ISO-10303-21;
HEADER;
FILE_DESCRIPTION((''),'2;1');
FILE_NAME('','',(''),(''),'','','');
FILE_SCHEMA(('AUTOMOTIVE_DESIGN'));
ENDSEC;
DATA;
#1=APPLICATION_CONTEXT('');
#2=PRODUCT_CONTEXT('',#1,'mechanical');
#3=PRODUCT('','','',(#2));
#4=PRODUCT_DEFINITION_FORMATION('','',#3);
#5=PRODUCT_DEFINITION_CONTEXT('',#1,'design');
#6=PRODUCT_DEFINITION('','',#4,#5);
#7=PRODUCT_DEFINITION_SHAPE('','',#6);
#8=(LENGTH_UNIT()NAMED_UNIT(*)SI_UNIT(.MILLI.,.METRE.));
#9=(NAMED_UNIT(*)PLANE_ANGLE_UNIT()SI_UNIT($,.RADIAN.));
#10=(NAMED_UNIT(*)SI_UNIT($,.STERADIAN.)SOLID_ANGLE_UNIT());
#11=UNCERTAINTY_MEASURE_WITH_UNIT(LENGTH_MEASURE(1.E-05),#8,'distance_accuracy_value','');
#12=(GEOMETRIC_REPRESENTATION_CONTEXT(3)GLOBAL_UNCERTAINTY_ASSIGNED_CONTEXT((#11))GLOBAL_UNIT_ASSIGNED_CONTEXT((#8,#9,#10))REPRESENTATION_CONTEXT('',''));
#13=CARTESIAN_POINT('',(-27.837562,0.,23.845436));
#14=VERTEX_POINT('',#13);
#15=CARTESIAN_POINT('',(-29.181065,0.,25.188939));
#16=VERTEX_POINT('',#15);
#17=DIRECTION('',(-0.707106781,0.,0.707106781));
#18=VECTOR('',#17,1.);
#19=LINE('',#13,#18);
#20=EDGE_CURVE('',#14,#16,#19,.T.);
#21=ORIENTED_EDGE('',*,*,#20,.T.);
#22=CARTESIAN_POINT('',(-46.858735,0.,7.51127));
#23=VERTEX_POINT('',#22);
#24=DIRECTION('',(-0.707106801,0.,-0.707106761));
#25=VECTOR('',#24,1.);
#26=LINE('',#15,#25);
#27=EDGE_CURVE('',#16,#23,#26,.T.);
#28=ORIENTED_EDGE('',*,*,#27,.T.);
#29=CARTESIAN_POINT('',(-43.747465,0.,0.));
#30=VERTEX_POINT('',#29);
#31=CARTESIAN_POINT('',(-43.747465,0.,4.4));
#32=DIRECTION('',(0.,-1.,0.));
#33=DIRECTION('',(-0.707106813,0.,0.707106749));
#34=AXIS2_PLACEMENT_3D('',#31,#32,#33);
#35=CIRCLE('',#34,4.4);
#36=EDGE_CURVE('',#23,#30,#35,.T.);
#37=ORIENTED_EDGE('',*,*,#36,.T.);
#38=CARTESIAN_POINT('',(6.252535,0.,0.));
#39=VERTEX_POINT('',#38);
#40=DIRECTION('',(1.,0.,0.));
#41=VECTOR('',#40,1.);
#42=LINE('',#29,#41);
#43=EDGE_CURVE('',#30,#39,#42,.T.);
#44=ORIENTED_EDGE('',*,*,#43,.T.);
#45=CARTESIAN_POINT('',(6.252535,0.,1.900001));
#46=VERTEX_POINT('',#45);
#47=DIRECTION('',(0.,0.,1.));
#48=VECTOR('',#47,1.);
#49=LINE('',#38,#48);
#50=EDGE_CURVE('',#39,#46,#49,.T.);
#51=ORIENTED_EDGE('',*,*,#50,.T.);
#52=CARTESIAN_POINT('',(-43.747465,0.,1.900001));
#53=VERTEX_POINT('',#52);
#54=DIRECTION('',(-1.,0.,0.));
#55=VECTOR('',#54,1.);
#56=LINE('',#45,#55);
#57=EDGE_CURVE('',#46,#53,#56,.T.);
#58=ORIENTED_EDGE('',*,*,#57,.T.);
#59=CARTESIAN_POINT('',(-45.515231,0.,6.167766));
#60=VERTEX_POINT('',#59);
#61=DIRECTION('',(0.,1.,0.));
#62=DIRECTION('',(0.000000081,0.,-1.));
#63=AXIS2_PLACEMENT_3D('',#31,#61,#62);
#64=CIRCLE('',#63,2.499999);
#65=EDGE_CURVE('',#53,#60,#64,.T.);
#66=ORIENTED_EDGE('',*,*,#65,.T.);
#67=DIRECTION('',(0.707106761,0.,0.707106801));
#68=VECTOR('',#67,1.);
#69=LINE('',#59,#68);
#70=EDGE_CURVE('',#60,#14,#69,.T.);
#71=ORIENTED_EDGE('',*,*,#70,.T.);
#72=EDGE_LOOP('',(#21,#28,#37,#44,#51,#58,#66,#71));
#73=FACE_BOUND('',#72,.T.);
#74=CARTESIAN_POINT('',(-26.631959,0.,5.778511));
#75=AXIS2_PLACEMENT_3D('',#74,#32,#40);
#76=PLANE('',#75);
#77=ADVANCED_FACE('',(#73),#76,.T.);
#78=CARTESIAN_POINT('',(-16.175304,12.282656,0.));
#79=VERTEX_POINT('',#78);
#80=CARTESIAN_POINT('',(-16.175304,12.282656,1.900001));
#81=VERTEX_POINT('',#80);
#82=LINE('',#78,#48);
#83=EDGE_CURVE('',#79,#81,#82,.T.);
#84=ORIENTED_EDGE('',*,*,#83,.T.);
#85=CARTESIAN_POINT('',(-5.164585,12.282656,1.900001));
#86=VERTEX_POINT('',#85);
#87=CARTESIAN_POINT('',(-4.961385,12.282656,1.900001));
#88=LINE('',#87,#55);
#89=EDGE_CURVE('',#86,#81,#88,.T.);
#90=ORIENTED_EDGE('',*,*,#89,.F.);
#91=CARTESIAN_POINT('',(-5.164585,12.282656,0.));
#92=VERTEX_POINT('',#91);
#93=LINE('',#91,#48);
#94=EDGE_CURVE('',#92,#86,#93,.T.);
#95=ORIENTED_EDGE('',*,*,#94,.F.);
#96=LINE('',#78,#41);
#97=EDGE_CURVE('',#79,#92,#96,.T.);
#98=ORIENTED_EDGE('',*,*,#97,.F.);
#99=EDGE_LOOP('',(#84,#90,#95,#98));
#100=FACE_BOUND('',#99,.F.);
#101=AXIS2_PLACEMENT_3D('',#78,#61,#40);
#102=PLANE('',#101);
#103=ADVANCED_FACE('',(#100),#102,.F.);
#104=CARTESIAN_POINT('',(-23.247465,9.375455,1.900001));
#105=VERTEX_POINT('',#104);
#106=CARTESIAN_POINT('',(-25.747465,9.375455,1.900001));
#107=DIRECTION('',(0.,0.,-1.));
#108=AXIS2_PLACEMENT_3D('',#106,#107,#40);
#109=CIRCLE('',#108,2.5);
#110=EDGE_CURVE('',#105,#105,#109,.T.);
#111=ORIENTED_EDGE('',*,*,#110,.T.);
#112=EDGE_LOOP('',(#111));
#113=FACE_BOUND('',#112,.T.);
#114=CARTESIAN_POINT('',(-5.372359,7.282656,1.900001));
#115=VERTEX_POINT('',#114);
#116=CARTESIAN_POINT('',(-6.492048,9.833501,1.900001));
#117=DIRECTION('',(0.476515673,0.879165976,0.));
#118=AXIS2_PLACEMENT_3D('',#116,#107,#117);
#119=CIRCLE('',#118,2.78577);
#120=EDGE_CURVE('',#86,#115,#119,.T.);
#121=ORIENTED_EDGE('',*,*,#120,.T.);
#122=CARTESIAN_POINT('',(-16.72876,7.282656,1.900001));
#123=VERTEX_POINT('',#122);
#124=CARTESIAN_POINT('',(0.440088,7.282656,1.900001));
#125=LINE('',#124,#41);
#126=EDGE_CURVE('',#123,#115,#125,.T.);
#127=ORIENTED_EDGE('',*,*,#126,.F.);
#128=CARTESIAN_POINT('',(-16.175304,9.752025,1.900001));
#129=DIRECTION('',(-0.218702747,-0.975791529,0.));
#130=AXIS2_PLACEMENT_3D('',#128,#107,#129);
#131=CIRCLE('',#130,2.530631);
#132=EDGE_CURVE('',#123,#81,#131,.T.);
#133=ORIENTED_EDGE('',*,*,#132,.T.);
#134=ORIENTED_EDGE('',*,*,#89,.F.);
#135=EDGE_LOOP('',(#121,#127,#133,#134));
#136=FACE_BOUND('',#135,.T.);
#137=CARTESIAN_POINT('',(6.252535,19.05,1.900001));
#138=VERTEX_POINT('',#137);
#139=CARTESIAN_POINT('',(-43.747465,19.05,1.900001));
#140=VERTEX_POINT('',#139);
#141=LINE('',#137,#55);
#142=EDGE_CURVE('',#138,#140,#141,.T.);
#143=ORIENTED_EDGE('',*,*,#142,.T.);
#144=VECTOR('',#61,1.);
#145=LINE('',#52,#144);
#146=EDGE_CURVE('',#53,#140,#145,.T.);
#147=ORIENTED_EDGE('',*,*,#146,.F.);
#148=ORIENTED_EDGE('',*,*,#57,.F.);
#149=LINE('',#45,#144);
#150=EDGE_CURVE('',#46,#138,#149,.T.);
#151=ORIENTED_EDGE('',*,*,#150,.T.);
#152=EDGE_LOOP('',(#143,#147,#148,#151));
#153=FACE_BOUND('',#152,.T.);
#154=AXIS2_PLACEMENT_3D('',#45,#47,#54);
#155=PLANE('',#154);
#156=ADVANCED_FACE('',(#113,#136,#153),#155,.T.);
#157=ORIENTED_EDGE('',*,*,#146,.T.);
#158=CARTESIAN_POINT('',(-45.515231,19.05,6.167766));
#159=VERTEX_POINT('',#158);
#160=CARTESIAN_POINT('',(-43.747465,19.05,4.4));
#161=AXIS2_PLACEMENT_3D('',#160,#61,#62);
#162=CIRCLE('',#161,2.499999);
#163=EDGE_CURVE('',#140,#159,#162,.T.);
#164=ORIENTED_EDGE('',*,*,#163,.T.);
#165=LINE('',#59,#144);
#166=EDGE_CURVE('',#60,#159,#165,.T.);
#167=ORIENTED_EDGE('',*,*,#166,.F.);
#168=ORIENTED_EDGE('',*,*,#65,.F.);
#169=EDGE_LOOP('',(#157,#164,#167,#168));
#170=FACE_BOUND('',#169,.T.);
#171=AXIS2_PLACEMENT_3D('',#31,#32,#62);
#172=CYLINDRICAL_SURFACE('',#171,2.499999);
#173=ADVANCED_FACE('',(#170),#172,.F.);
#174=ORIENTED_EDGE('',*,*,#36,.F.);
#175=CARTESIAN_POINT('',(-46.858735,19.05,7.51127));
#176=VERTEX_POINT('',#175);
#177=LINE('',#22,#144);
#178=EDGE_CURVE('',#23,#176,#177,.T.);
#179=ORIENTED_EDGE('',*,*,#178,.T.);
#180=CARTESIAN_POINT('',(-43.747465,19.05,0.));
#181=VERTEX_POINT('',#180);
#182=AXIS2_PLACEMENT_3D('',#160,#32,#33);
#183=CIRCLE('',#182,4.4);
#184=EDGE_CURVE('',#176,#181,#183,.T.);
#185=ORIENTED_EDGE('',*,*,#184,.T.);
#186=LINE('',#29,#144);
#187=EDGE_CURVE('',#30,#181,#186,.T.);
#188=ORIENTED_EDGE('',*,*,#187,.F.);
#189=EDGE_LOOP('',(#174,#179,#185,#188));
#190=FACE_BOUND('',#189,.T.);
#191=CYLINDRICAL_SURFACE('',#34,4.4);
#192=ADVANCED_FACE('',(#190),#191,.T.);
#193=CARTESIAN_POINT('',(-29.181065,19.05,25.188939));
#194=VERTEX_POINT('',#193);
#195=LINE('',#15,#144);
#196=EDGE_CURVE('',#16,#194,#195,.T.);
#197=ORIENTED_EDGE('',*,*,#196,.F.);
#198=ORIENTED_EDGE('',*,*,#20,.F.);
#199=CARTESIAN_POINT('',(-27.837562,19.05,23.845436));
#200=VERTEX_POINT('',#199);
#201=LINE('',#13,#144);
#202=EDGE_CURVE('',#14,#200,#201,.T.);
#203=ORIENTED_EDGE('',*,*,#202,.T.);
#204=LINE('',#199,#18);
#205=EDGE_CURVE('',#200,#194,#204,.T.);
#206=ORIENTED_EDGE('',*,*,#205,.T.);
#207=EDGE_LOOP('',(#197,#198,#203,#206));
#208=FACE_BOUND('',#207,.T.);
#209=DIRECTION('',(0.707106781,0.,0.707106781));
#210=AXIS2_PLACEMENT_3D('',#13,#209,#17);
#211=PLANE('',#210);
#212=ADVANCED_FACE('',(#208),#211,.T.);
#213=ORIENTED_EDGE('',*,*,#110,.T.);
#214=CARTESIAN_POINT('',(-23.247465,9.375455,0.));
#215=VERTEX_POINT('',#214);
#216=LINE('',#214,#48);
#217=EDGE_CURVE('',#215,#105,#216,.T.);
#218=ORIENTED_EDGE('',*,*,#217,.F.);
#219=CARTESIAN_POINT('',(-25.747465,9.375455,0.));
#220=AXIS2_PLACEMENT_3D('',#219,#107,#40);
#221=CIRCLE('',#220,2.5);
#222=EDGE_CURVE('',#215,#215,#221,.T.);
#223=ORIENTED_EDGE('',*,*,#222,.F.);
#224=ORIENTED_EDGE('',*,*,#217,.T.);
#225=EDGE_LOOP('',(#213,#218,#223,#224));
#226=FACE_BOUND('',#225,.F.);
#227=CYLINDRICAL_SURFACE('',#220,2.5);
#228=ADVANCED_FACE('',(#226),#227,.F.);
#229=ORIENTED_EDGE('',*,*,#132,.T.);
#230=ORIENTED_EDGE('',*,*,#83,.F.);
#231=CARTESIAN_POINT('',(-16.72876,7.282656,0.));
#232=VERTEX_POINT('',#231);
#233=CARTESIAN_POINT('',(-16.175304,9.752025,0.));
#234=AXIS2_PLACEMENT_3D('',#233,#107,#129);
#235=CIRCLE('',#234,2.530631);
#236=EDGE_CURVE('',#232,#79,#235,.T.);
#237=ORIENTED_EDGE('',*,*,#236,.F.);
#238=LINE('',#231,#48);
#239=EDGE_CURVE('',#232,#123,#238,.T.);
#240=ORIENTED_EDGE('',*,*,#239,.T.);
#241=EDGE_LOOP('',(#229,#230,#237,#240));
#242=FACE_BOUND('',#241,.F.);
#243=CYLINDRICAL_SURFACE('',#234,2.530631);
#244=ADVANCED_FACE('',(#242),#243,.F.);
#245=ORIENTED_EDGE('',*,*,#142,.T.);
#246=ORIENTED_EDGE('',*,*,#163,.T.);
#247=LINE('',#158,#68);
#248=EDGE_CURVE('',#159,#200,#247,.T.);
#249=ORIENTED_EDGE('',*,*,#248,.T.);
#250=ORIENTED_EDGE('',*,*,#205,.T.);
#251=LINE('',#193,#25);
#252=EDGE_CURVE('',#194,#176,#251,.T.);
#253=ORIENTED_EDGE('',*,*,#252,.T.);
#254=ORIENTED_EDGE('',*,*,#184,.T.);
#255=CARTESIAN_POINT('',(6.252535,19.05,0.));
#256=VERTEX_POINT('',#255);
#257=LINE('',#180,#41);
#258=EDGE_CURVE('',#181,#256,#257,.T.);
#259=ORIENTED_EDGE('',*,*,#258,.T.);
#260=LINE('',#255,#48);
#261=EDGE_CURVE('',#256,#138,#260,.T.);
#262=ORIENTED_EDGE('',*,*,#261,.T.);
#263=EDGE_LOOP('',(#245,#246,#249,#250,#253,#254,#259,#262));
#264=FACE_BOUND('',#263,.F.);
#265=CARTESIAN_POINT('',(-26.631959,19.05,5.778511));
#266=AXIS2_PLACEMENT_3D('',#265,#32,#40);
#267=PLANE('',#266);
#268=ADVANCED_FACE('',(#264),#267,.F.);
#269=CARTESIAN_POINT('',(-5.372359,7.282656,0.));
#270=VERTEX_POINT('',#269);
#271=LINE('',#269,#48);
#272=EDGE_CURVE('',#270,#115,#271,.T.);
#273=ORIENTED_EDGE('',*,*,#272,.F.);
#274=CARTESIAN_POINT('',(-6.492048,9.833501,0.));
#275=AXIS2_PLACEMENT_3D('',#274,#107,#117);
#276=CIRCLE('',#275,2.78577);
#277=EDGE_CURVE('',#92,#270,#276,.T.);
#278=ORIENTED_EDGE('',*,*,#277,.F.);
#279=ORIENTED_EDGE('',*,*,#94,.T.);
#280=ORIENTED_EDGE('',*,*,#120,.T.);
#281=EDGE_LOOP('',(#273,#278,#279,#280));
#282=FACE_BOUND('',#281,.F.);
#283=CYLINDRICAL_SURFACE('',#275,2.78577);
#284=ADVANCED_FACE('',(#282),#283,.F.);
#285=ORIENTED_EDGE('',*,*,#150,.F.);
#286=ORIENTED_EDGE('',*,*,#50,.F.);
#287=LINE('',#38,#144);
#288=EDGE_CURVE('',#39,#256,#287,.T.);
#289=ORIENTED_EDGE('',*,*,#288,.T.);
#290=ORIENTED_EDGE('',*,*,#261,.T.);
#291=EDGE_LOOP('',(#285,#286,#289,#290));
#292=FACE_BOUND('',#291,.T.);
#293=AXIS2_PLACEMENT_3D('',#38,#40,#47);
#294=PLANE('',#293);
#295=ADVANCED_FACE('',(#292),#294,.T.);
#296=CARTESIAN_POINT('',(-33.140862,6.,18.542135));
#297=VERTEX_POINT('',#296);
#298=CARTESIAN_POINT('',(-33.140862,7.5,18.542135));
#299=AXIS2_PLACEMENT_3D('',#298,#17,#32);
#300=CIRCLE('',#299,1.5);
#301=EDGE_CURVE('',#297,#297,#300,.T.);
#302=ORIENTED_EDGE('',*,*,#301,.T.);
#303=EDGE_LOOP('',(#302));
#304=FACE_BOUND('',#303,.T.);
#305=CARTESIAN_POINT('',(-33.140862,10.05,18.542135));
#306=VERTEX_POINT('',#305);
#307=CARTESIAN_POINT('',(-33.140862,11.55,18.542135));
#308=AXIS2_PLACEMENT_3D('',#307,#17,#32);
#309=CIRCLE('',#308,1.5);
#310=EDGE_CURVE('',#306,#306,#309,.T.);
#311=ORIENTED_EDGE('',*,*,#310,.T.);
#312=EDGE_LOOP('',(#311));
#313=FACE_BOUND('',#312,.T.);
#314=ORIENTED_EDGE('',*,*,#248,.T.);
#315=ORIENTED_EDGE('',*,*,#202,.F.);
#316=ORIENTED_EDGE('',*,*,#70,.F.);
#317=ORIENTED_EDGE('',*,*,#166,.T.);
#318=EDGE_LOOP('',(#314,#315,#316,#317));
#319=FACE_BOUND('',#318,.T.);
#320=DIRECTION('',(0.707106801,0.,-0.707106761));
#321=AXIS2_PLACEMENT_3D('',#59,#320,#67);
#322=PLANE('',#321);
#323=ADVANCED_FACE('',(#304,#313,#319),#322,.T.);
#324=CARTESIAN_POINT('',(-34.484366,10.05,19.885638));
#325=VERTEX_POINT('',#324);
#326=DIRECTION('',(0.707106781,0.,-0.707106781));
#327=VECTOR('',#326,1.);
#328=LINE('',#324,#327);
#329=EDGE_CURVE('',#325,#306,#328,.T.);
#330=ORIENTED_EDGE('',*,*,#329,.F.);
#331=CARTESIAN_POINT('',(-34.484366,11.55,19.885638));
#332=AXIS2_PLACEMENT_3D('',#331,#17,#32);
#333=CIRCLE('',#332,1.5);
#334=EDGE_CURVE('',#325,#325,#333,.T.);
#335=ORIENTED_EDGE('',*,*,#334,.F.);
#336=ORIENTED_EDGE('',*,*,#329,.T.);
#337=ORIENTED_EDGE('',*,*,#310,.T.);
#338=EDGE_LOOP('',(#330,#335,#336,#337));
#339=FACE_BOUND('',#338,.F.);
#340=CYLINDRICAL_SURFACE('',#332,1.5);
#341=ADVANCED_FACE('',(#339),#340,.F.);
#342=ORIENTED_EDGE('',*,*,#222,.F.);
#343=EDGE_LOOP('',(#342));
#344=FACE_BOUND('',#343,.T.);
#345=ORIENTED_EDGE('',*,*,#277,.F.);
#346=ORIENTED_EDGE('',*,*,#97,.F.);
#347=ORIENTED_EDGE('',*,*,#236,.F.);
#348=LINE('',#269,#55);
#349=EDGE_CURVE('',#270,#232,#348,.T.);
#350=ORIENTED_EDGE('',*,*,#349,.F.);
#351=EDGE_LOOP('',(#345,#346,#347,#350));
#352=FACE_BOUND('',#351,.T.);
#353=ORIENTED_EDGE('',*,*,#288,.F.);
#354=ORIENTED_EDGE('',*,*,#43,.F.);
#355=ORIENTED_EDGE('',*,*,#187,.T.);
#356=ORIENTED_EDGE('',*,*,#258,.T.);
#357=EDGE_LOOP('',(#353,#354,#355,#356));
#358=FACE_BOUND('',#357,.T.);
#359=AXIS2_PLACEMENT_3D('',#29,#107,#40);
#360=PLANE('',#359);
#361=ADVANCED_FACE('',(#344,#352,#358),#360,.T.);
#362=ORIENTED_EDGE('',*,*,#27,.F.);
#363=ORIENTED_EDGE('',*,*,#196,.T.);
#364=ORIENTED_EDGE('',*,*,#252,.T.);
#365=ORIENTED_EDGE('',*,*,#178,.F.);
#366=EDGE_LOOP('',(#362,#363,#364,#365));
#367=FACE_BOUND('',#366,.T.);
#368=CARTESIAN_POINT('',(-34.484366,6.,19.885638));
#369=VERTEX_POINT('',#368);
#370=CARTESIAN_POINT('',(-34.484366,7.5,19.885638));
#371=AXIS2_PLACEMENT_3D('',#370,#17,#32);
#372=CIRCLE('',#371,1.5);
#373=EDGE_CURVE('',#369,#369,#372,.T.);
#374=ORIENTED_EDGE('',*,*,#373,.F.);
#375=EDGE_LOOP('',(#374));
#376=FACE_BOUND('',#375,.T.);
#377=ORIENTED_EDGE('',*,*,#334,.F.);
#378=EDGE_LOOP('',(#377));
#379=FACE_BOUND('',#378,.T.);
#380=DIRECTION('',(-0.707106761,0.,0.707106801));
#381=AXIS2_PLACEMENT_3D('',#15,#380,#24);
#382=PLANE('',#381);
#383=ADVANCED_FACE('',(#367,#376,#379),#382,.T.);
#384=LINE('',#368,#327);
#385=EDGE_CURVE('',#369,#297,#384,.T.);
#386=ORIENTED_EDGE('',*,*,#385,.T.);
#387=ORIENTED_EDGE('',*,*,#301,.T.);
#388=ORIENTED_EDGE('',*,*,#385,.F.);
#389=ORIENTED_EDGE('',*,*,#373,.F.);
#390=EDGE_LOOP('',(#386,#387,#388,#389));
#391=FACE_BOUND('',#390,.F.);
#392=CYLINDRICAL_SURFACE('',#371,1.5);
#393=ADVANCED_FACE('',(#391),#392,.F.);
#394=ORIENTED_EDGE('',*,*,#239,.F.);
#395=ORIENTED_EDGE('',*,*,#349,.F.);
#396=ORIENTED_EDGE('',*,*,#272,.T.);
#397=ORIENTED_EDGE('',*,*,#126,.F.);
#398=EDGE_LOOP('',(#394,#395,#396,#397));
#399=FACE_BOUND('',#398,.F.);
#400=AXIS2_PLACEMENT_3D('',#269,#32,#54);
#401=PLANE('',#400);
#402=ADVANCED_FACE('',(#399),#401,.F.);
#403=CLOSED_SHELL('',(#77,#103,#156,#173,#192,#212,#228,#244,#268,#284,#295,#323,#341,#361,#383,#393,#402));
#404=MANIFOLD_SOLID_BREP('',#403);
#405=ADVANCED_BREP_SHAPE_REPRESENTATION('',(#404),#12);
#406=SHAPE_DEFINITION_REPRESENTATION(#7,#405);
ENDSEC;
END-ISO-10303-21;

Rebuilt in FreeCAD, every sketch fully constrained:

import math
import FreeCAD as App
import Part
import Sketcher
Q = App.Units.Quantity

doc = App.newDocument("Part")
params = doc.addObject("Spreadsheet::Sheet", "Params")
for row, (alias, value) in enumerate([
    ("sketch1_radius", "2.499999 mm"),
    ("sketch1_radius2", "4.4 mm"),
    ("sketch1_width", "50 mm"),
    ("sketch1_length", "25 mm"),
    ("pad1_length", "19.05 mm"),
    ("sketch2_diameter", "3 mm"),
    ("pocket1_length", "12.7 mm"),
    ("sketch3_diameter", "5 mm"),
    ("pocket2_length", "12.7 mm"),
], start=1):
    params.set(f"A{row}", alias)
    params.set(f"B{row}", "=" + value)
    params.setAlias(f"B{row}", alias)

body = doc.addObject("PartDesign::Body", "Body")

# Sketch on XZ plane
sketch1 = doc.addObject("Sketcher::SketchObject", "Sketch")
body.addObject(sketch1)
sketch1.AttachmentSupport = (doc.XZ_Plane, [""])
sketch1.MapMode = "FlatFace"
sketch1.addGeometry([
    Part.LineSegment(App.Vector(-43.747465, 0, 0), App.Vector(6.252535, 0, 0)),  # 0
    Part.LineSegment(App.Vector(6.252535, 0, 0), App.Vector(6.252535, 1.900001, 0)),  # 1
    Part.LineSegment(App.Vector(6.252535, 1.900001, 0), App.Vector(-43.747465, 1.900001, 0)),  # 2
    Part.ArcOfCircle(Part.Circle(App.Vector(-43.747465, 4.4, 0), App.Vector(0, 0, 1), 2.499999), math.radians(134.999992), math.radians(270.000005)),  # 3
    Part.LineSegment(App.Vector(-45.515231, 6.167766, 0), App.Vector(-27.837562, 23.845436, 0)),  # 4
    Part.LineSegment(App.Vector(-27.837562, 23.845436, 0), App.Vector(-29.181065, 25.188939, 0)),  # 5
    Part.LineSegment(App.Vector(-29.181065, 25.188939, 0), App.Vector(-46.858735, 7.51127, 0)),  # 6
    Part.ArcOfCircle(Part.Circle(App.Vector(-43.747465, 4.4, 0), App.Vector(0, 0, 1), 4.4), math.radians(135.000003), math.radians(269.999999)),  # 7
], False)
sketch1.addConstraint([
    Sketcher.Constraint("Coincident", 0, 2, 1, 1),
    Sketcher.Constraint("Coincident", 1, 2, 2, 1),
    Sketcher.Constraint("Tangent", 2, 2, 3, 2),
    Sketcher.Constraint("Tangent", 3, 1, 4, 1),
    Sketcher.Constraint("Coincident", 4, 2, 5, 1),
    Sketcher.Constraint("Coincident", 5, 2, 6, 1),
    Sketcher.Constraint("Tangent", 6, 2, 7, 1),
    Sketcher.Constraint("Tangent", 7, 2, 0, 1),
    Sketcher.Constraint("Horizontal", 0),
    Sketcher.Constraint("Vertical", 1),
    Sketcher.Constraint("Horizontal", 2),
    Sketcher.Constraint("Coincident", 7, 3, 3, 3),
    Sketcher.Constraint("PointOnObject", 0, 2, -1),
    Sketcher.Constraint("Perpendicular", 4, 5),
    Sketcher.Constraint("Perpendicular", 5, 6),
    Sketcher.Constraint("Radius", 3, Q("2.499999 mm")),
    Sketcher.Constraint("Radius", 7, Q("4.4 mm")),
    Sketcher.Constraint("DistanceX", 0, 1, 0, 2, Q("50 mm")),
    Sketcher.Constraint("Angle", 4, Q("45.000002 deg")),
    Sketcher.Constraint("Distance", 4, Q("25 mm")),
    Sketcher.Constraint("DistanceX", 3, 1, -1, 1, Q("45.515231 mm")),
])
sketch1.setExpression("Constraints[15]", "Params.sketch1_radius")
sketch1.setExpression("Constraints[16]", "Params.sketch1_radius2")
sketch1.setExpression("Constraints[17]", "Params.sketch1_width")
sketch1.setExpression("Constraints[19]", "Params.sketch1_length")
pad1 = doc.addObject("PartDesign::Pad", "Pad")
body.addObject(pad1)
pad1.Profile = sketch1
pad1.setExpression("Length", "Params.pad1_length")
pad1.Reversed = True

# Sketch on an angled plane
sketch2 = doc.addObject("Sketcher::SketchObject", "Sketch001")
body.addObject(sketch2)
sketch2.Placement = App.Placement(App.Vector(-27.185002, 0, 27.185002), App.Rotation(App.Vector(0, -1, 0), App.Vector(0.707106781, 0, 0.707106781), App.Vector(-0.707106781, 0, 0.707106781), "ZXY"))
sketch2.addGeometry([
    Part.Circle(App.Vector(-7.5, -10.322859, 0), App.Vector(0, 0, 1), 1.5),
    Part.Circle(App.Vector(-11.55, -10.322859, 0), App.Vector(0, 0, 1), 1.5),
], False)
sketch2.addConstraint([
    Sketcher.Constraint("Equal", 0, 1),
    Sketcher.Constraint("Horizontal", 0, 3, 1, 3),
    Sketcher.Constraint("Diameter", 0, Q("3 mm")),
    Sketcher.Constraint("DistanceX", 0, 3, -1, 1, Q("7.5 mm")),
    Sketcher.Constraint("DistanceX", 1, 3, -1, 1, Q("11.55 mm")),
    Sketcher.Constraint("DistanceY", 0, 3, -1, 1, Q("10.322859 mm")),
])
sketch2.setExpression("Constraints[2]", "Params.sketch2_diameter")
pocket1 = doc.addObject("PartDesign::Pocket", "Pocket")
body.addObject(pocket1)
pocket1.Profile = sketch2
pocket1.setExpression("Length", "Params.pocket1_length")

# Sketch on XY plane
sketch3 = doc.addObject("Sketcher::SketchObject", "Sketch002")
body.addObject(sketch3)
sketch3.AttachmentSupport = (doc.XY_Plane, [""])
sketch3.MapMode = "FlatFace"
sketch3.addGeometry([
    Part.LineSegment(App.Vector(-5.372359, 7.282656, 0), App.Vector(-16.72876, 7.282656, 0)),  # 0
    Part.ArcOfCircle(Part.Circle(App.Vector(-16.175304, 9.752025, 0), App.Vector(0, 0, 1), 2.530631), math.radians(90.000001), math.radians(257.367149)),  # 1
    Part.LineSegment(App.Vector(-16.175304, 12.282656, 0), App.Vector(-5.164585, 12.282656, 0)),  # 2
    Part.ArcOfCircle(Part.Circle(App.Vector(-6.492048, 9.833501, 0), App.Vector(0, 0, 1), 2.78577), math.radians(-66.30101), math.radians(61.541919)),  # 3
    Part.Circle(App.Vector(-25.747465, 9.375455, 0), App.Vector(0, 0, 1), 2.5),  # 4
], False)
sketch3.addConstraint([
    Sketcher.Constraint("Coincident", 0, 2, 1, 2),
    Sketcher.Constraint("Tangent", 1, 1, 2, 1),
    Sketcher.Constraint("Coincident", 2, 2, 3, 2),
    Sketcher.Constraint("Coincident", 3, 1, 0, 1),
    Sketcher.Constraint("Horizontal", 0),
    Sketcher.Constraint("Horizontal", 2),
    Sketcher.Constraint("Diameter", 4, Q("5 mm")),
    Sketcher.Constraint("DistanceY", 0, 2, 1, 1, Q("5 mm")),
    Sketcher.Constraint("Radius", 1, Q("2.530631 mm")),
    Sketcher.Constraint("Radius", 3, Q("2.78577 mm")),
    Sketcher.Constraint("DistanceX", 0, 2, 0, 1, Q("11.356401 mm")),
    Sketcher.Constraint("DistanceX", 2, 1, 2, 2, Q("11.010719 mm")),
    Sketcher.Constraint("DistanceY", -1, 1, 3, 3, Q("9.833501 mm")),
    Sketcher.Constraint("DistanceY", 0, 2, 4, 3, Q("2.092799 mm")),
    Sketcher.Constraint("DistanceX", 3, 3, -1, 1, Q("6.492048 mm")),
    Sketcher.Constraint("DistanceX", 4, 3, 1, 3, Q("9.572161 mm")),
])
sketch3.setExpression("Constraints[6]", "Params.sketch3_diameter")
pocket2 = doc.addObject("PartDesign::Pocket", "Pocket001")
body.addObject(pocket2)
pocket2.Profile = sketch3
pocket2.setExpression("Length", "Params.pocket2_length")
pocket2.Reversed = True

doc.recompute()
